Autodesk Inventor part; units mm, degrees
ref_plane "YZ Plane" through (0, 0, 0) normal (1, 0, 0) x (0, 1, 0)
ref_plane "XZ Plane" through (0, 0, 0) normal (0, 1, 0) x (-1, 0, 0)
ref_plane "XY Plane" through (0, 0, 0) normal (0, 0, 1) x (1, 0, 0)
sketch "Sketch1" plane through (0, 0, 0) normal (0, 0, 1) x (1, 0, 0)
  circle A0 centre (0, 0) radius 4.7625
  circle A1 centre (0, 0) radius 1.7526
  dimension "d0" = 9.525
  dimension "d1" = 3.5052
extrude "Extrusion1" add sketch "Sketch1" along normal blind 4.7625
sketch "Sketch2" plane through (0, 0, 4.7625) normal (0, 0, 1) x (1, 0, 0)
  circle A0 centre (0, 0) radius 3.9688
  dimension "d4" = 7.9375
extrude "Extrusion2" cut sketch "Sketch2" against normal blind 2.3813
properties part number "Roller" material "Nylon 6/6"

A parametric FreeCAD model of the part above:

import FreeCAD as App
import Part
import Sketcher
Q = App.Units.Quantity

doc = App.newDocument("Part")
body = doc.addObject("PartDesign::Body", "Body")

sketch1 = body.newObject("Sketcher::SketchObject", "Sketch")
sketch1.AttachmentSupport = (doc.getObject("XY_Plane"), [""])
sketch1.MapMode = "FlatFace"
sketch1.addGeometry([
    Part.Circle(App.Vector(0, 0, 0), App.Vector(0, 0, 1), 4.7625),
    Part.Circle(App.Vector(0, 0, 0), App.Vector(0, 0, 1), 1.7526),
], False)
sketch1.addConstraint([
    Sketcher.Constraint("Coincident", 0, 3, -1, 1),
    Sketcher.Constraint("Coincident", 1, 3, -1, 1),
    Sketcher.Constraint("Diameter", 0, Q("0.375 in")),
    Sketcher.Constraint("Diameter", 1, Q("0.138 in")),
])
pad1 = body.newObject("PartDesign::Pad", "Pad")
pad1.Profile = sketch1
pad1.Length = Q("0.1875 in")

sketch2 = body.newObject("Sketcher::SketchObject", "Sketch001")
sketch2.AttachmentSupport = (doc.getObject("XY_Plane"), [""])
sketch2.MapMode = "FlatFace"
sketch2.AttachmentOffset = App.Placement(App.Vector(0, 0, 0.1875 * 25.4), App.Rotation())
sketch2.addGeometry(Part.Circle(App.Vector(0, 0, 0), App.Vector(0, 0, 1), 3.9688), False)
sketch2.addConstraint([
    Sketcher.Constraint("Coincident", 0, 3, -1, 1),
    Sketcher.Constraint("Diameter", 0, Q("0.3125 in")),
])
pocket1 = body.newObject("PartDesign::Pocket", "Pocket")
pocket1.Profile = sketch2
pocket1.Length = Q("0.093752 in")

doc.recompute()
